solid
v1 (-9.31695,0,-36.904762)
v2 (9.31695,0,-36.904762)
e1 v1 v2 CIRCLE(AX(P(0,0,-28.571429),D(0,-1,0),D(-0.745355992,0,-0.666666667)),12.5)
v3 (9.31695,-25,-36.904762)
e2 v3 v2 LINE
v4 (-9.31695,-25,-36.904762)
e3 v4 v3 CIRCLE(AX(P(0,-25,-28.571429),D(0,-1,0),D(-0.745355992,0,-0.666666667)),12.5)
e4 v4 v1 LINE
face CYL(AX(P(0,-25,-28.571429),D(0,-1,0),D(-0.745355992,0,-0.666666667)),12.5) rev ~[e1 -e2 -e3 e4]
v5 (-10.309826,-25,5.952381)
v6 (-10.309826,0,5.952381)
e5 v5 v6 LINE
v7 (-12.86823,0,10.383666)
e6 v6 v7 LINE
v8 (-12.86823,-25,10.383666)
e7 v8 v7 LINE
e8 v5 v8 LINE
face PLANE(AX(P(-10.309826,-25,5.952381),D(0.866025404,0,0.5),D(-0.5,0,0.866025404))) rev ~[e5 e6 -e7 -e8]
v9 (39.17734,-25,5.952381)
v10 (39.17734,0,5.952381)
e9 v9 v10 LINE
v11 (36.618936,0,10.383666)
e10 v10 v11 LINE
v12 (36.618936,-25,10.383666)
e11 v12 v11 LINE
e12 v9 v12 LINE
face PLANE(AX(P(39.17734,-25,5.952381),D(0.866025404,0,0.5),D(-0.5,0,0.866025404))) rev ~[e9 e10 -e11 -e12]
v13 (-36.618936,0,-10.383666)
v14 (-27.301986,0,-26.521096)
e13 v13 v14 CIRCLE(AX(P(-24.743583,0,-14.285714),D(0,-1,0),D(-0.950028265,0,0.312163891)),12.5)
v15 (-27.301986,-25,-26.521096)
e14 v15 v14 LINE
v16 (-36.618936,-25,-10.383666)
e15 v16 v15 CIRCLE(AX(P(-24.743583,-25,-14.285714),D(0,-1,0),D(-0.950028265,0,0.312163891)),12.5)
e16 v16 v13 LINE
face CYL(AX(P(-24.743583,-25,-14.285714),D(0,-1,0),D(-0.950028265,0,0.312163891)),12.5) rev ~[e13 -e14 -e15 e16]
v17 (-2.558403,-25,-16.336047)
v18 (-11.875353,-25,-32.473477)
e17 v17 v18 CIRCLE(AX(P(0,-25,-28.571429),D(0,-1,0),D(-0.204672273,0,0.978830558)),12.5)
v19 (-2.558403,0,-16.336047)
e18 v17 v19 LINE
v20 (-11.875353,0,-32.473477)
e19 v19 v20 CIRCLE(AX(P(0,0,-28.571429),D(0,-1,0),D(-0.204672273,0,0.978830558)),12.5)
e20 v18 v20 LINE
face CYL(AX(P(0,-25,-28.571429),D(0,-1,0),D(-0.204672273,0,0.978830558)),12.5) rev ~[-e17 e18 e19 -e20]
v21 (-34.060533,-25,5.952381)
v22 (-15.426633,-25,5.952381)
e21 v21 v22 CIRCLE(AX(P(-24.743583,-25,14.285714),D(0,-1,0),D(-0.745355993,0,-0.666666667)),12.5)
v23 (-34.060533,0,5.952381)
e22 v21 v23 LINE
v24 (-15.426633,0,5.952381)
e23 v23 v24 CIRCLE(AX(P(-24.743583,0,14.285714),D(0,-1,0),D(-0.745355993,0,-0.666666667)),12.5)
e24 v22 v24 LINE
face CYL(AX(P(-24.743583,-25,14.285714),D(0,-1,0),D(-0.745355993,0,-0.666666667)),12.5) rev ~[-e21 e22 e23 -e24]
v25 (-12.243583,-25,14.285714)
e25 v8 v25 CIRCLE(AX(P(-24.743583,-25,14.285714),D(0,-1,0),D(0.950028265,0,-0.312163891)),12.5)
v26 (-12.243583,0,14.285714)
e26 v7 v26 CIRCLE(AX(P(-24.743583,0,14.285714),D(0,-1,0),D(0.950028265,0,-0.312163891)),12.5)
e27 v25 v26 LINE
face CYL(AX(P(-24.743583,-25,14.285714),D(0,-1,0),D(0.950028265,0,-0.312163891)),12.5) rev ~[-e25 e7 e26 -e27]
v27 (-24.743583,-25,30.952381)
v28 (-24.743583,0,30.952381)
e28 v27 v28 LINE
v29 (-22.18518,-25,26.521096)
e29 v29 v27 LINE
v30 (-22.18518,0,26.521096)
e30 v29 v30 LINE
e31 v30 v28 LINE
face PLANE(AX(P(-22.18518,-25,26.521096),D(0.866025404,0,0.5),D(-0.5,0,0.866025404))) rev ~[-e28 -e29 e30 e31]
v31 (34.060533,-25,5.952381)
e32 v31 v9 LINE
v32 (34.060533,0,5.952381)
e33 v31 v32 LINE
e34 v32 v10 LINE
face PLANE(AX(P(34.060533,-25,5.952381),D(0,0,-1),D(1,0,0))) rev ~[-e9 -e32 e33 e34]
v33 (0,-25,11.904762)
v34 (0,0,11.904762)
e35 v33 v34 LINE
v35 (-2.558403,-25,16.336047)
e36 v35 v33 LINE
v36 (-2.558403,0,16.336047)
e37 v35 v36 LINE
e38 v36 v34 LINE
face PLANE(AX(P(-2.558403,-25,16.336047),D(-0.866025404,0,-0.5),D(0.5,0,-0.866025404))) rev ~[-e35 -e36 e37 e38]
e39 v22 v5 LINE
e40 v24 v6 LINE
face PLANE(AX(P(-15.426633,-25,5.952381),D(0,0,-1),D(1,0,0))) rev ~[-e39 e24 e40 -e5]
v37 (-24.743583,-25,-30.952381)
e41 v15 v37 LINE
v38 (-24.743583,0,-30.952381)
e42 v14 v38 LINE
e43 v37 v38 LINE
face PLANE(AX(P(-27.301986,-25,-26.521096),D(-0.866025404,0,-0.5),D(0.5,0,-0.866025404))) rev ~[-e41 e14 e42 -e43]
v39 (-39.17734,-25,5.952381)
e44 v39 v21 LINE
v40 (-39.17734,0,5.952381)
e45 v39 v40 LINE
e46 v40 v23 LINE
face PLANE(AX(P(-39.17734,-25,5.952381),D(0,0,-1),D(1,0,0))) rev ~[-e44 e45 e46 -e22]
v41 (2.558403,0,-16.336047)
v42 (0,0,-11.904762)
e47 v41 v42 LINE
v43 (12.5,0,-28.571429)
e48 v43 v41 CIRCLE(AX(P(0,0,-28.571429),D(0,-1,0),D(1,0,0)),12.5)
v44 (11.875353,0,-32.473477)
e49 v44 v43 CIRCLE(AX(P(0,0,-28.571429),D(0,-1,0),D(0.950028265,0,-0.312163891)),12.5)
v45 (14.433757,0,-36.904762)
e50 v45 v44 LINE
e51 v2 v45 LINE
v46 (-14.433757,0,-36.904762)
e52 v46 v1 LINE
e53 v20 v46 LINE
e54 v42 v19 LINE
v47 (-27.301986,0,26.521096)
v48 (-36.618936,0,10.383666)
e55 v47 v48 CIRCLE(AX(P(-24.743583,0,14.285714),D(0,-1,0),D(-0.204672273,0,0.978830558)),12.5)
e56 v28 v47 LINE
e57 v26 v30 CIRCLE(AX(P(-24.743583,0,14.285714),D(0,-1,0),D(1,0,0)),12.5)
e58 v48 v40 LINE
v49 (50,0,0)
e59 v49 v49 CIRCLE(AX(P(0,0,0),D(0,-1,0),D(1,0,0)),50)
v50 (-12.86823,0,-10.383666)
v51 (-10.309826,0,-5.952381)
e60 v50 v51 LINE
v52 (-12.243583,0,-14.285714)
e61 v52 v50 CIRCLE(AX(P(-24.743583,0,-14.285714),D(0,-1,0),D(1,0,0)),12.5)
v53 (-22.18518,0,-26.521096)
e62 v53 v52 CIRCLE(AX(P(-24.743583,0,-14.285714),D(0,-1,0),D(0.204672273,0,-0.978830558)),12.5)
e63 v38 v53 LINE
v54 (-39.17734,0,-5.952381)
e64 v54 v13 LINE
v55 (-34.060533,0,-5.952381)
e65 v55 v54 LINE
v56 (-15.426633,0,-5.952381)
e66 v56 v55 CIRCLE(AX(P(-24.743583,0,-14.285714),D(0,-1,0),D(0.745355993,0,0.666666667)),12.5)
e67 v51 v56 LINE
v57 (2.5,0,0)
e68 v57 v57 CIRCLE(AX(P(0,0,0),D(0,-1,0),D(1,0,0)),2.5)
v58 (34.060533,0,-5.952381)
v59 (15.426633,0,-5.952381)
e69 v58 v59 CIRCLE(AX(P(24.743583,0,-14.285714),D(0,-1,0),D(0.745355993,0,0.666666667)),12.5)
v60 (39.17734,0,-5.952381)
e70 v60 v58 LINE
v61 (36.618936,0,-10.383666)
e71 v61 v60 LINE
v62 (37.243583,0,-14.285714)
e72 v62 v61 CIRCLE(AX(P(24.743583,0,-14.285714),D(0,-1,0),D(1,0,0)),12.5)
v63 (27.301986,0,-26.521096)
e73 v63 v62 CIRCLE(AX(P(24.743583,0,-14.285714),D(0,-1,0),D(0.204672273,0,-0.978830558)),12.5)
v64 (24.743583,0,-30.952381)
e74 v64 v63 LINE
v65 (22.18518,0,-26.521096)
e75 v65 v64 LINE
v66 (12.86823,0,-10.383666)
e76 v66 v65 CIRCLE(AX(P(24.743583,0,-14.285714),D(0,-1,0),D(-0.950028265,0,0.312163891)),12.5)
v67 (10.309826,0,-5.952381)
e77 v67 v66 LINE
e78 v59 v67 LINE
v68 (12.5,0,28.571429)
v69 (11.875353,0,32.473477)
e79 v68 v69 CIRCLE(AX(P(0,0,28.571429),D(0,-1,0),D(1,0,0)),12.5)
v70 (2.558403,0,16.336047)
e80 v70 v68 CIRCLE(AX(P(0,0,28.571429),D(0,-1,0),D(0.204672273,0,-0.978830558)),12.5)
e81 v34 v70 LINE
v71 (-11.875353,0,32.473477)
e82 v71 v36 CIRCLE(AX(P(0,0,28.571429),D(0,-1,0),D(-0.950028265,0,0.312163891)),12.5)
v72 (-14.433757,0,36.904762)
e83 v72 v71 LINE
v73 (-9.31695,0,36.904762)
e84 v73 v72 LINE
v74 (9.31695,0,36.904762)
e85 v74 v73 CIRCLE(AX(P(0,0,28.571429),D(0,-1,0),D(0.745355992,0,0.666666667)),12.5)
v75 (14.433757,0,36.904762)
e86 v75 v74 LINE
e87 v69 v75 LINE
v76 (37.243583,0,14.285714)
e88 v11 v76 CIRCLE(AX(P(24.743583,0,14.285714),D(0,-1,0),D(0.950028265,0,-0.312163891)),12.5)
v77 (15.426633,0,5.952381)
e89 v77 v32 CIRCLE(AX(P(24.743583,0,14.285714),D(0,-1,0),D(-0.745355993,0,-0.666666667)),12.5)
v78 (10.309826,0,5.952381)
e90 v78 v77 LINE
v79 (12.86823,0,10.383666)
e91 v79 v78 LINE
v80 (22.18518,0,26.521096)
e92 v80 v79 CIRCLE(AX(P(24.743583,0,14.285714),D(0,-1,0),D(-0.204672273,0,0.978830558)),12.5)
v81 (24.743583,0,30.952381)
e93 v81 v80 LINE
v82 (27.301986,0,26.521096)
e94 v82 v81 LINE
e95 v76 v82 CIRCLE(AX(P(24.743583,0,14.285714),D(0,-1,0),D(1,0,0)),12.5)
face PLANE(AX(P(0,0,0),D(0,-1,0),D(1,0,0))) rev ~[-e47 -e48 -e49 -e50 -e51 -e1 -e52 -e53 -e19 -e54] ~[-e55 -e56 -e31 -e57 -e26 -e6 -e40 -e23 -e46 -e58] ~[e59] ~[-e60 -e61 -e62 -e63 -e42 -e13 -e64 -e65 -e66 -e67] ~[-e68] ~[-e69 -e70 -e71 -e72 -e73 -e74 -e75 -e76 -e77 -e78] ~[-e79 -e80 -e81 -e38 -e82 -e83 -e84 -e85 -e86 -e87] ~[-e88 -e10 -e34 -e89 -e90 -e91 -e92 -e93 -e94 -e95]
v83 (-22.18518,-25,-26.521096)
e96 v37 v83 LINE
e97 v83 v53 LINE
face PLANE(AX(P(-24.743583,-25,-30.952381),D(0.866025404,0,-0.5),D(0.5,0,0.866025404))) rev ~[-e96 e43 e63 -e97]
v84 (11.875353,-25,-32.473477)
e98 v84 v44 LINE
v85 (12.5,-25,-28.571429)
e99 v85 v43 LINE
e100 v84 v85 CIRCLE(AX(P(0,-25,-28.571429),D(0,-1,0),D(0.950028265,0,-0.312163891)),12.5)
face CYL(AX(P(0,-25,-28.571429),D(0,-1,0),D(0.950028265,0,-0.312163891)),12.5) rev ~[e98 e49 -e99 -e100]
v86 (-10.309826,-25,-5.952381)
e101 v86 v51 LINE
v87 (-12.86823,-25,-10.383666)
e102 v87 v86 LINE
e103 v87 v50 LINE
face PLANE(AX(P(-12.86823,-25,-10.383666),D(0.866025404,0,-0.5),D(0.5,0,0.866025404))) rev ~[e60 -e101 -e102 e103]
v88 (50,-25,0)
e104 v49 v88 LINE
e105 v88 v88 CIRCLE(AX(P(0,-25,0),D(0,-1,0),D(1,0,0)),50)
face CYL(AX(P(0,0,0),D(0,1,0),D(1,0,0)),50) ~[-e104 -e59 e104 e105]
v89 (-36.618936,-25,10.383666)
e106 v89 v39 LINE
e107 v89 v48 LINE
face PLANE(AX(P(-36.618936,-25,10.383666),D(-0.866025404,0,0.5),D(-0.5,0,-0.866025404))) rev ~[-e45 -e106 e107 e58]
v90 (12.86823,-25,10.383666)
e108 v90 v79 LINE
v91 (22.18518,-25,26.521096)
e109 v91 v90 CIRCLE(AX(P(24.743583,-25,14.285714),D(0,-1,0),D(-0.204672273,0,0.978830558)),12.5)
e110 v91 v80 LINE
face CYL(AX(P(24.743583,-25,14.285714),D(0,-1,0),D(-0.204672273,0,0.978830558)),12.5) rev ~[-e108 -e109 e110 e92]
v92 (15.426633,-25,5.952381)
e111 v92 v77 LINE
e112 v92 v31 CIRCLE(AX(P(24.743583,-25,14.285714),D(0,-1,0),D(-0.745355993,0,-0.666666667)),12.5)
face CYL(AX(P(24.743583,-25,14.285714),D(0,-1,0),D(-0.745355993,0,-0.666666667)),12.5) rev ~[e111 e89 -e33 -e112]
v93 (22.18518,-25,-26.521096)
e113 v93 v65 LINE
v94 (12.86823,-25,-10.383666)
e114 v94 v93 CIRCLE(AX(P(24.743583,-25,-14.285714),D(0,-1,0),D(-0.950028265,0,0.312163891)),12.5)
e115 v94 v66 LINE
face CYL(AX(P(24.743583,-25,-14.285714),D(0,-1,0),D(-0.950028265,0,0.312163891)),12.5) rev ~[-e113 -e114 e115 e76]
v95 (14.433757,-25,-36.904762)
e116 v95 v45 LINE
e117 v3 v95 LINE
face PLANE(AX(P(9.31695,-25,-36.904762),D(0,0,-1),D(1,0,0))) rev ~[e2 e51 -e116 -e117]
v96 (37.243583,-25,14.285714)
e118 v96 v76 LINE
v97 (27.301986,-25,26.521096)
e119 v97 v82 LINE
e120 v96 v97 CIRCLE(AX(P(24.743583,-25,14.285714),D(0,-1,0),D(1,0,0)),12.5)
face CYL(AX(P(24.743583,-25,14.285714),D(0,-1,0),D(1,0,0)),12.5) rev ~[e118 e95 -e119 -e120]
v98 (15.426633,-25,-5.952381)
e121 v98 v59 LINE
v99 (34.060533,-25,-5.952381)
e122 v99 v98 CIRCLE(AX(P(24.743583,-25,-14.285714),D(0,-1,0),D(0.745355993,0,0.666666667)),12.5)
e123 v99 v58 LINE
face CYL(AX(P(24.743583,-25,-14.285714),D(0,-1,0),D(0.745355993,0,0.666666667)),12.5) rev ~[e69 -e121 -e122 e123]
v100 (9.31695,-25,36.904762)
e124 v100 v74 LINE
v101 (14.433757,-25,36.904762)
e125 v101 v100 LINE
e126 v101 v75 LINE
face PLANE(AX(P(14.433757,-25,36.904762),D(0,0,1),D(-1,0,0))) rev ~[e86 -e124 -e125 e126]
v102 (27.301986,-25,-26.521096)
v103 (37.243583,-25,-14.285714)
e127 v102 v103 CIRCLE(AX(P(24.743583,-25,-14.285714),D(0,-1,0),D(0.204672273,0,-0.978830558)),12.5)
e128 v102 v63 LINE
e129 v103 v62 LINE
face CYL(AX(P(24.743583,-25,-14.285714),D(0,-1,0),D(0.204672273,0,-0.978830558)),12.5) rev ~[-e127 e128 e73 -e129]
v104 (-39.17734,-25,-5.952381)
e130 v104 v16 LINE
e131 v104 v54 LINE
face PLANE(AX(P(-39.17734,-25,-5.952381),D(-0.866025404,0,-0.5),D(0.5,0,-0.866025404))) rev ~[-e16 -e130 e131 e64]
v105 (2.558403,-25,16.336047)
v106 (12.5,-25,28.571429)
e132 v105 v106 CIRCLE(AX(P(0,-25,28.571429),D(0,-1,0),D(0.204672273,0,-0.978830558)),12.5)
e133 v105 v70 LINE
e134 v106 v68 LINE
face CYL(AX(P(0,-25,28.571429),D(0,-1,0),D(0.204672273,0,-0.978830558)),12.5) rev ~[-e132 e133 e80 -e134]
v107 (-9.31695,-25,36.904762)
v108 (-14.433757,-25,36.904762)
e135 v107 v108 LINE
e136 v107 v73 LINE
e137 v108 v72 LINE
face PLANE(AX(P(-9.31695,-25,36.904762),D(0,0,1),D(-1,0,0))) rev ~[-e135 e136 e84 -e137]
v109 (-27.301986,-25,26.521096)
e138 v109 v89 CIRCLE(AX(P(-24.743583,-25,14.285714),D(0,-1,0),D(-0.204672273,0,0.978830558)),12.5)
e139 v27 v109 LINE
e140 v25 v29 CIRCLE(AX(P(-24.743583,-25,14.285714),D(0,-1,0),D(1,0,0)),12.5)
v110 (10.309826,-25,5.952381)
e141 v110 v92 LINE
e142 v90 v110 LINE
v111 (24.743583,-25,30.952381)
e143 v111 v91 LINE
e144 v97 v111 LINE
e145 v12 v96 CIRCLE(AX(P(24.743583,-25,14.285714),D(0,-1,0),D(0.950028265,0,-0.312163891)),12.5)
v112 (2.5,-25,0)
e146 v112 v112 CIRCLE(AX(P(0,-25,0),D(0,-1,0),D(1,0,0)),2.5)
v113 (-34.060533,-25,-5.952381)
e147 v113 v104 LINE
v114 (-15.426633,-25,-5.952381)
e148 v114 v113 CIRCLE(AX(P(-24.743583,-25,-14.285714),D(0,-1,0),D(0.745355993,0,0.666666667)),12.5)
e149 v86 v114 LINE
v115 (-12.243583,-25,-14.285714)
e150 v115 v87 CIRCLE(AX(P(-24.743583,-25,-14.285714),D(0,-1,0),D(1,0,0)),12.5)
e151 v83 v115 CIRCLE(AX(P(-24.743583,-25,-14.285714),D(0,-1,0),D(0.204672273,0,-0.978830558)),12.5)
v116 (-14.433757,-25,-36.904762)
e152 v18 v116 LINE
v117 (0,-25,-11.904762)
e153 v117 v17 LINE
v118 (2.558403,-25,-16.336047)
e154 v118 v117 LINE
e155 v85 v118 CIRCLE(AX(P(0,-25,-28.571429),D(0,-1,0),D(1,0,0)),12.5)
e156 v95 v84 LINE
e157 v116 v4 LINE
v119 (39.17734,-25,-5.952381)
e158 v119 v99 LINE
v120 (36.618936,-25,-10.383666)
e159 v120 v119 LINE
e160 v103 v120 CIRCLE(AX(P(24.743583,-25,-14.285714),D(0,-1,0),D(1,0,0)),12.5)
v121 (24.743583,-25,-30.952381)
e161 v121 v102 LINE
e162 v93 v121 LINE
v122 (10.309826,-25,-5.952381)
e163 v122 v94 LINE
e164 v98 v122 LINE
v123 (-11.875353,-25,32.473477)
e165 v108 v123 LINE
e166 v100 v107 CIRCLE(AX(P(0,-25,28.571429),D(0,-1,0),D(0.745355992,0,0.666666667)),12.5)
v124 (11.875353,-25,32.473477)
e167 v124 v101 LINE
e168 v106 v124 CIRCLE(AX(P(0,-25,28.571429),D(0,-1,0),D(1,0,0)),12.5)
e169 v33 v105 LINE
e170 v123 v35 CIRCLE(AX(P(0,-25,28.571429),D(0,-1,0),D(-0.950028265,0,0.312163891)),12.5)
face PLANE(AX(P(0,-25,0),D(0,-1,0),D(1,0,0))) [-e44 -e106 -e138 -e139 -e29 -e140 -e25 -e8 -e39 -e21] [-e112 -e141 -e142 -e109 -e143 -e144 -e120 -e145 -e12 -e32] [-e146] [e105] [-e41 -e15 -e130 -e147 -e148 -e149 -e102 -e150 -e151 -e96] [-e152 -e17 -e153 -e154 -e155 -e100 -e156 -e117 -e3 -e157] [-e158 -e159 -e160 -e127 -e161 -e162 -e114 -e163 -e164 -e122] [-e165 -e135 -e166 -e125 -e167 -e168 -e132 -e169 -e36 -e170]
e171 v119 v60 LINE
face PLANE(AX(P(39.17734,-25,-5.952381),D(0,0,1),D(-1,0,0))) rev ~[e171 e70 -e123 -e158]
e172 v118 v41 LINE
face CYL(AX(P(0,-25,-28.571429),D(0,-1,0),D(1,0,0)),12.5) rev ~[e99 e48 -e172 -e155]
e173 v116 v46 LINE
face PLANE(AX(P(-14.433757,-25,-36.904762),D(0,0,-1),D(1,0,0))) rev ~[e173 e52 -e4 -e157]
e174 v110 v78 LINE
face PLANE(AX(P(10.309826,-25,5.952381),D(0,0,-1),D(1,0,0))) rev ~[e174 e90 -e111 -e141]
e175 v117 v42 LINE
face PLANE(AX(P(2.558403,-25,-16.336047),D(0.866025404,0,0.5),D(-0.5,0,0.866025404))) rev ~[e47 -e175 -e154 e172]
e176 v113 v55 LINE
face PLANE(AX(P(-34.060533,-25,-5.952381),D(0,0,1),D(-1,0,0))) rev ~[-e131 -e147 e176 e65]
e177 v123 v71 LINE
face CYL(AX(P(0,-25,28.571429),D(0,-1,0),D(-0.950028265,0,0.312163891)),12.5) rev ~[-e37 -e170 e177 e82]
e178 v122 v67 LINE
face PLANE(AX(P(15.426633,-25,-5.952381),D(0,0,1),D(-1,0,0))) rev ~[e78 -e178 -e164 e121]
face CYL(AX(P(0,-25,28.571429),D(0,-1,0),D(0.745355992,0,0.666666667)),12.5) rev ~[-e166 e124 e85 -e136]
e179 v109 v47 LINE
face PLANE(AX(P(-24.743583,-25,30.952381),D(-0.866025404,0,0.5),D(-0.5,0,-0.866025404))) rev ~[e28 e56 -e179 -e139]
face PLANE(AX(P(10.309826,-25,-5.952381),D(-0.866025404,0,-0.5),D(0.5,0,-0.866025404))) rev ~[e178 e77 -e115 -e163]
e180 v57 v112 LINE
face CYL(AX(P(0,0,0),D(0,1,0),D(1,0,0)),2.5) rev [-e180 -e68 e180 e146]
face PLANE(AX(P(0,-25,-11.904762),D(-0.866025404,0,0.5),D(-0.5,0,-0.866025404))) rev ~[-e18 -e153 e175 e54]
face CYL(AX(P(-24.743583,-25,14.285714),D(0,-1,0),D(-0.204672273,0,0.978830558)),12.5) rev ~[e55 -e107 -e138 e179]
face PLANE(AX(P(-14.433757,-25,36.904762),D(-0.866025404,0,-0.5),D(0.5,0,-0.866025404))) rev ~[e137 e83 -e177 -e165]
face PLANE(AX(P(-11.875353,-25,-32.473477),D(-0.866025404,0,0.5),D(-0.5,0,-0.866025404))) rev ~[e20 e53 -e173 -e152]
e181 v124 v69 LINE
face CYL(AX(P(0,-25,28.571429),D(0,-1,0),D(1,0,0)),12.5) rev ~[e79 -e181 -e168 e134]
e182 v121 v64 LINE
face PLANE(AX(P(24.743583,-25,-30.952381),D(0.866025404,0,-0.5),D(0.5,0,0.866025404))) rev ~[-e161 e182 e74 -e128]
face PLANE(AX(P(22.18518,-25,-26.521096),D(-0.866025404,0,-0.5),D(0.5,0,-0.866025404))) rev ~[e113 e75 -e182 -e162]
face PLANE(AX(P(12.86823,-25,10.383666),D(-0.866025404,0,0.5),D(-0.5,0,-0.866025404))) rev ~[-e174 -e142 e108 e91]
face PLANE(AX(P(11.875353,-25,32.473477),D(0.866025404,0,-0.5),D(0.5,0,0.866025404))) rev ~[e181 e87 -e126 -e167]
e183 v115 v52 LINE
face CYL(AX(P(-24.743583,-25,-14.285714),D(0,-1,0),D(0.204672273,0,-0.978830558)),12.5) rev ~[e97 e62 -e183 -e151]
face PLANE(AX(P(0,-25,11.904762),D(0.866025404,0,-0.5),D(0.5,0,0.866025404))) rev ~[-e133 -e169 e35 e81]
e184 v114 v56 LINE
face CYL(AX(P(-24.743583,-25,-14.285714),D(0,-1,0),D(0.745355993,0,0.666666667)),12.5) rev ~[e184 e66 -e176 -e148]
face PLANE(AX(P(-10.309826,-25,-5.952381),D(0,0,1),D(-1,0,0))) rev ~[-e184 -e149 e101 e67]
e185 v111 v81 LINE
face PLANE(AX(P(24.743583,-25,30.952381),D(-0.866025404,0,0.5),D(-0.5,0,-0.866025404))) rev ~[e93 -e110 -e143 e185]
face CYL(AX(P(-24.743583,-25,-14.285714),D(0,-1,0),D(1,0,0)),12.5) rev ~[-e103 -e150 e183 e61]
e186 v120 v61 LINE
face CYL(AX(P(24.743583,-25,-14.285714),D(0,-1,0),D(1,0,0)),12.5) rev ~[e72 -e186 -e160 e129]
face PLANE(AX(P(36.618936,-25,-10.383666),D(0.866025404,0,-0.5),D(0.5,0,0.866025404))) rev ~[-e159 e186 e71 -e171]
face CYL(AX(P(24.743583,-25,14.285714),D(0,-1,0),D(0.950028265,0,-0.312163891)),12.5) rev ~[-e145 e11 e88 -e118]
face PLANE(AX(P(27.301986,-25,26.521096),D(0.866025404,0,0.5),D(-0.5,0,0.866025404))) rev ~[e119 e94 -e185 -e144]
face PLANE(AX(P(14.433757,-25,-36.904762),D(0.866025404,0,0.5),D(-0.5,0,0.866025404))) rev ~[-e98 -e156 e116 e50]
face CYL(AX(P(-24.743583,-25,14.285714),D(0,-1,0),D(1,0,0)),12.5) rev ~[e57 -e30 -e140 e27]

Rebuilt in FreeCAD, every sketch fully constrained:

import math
import FreeCAD as App
import Part
import Sketcher
from FreeCAD import Vector
Q = App.Units.Quantity

doc = App.newDocument("Part")
body = doc.addObject("PartDesign::Body", "Body")

# Sketch on XZ plane
sketch1 = body.newObject("Sketcher::SketchObject", "Sketch")
sketch1.AttachmentSupport = (doc.getObject("XZ_Plane"), [""])
sketch1.MapMode = "FlatFace"
sketch1.addGeometry([
    Part.Circle(Vector(0, 0, 0), Vector(0, 0, 1), 50),
    Part.Circle(Vector(0, 0, 0), Vector(0, 0, 1), 2.5),
], False)
sketch1.addConstraint([
    Sketcher.Constraint("Coincident", 0, 3, -1, 1),
    Sketcher.Constraint("Coincident", 1, 3, -1, 1),
    Sketcher.Constraint("Diameter", 0, Q("100 mm")),
    Sketcher.Constraint("Diameter", 1, Q("5 mm")),
])
pad1 = body.newObject("PartDesign::Pad", "Pad")
pad1.Profile = sketch1
pad1.Length = 25

# Sketch on XZ plane
sketch2 = body.newObject("Sketcher::SketchObject", "Sketch001")
sketch2.AttachmentSupport = (doc.getObject("XZ_Plane"), [""])
sketch2.MapMode = "FlatFace"
sketch2.AttachmentOffset = App.Placement(Vector(0, 0, 25), App.Rotation())
sketch2.addGeometry([
    Part.LineSegment(Vector(11.875353, 32.473477, 0), Vector(14.433757, 36.904762, 0)),  # 0
    Part.LineSegment(Vector(14.433757, 36.904762, 0), Vector(9.31695, 36.904762, 0)),  # 1
    Part.ArcOfCircle(Part.Circle(Vector(0, 28.571429, 0), Vector(0, 0, 1), 12.5), math.radians(41.810315), math.radians(138.189685)),  # 2
    Part.LineSegment(Vector(-9.31695, 36.904762, 0), Vector(-14.433757, 36.904762, 0)),  # 3
    Part.LineSegment(Vector(-14.433757, 36.904762, 0), Vector(-11.875353, 32.473477, 0)),  # 4
    Part.ArcOfCircle(Part.Circle(Vector(0, 28.571429, 0), Vector(0, 0, 1), 12.5), math.radians(161.810315), math.radians(258.189685)),  # 5
    Part.LineSegment(Vector(-2.558403, 16.336047, 0), Vector(0, 11.904762, 0)),  # 6
    Part.LineSegment(Vector(0, 11.904762, 0), Vector(2.558403, 16.336047, 0)),  # 7
    Part.ArcOfCircle(Part.Circle(Vector(0, 28.571429, 0), Vector(0, 0, 1), 12.5), math.radians(-78.189685), math.radians(0)),  # 8
    Part.ArcOfCircle(Part.Circle(Vector(0, 28.571429, 0), Vector(0, 0, 1), 12.5), math.radians(0), math.radians(18.189685)),  # 9
    Part.LineSegment(Vector(27.301986, 26.521096, 0), Vector(24.743583, 30.952381, 0)),  # 10
    Part.LineSegment(Vector(24.743583, 30.952381, 0), Vector(22.18518, 26.521096, 0)),  # 11
    Part.ArcOfCircle(Part.Circle(Vector(24.743583, 14.285714, 0), Vector(0, 0, 1), 12.5), math.radians(101.810315), math.radians(198.189685)),  # 12
    Part.LineSegment(Vector(12.86823, 10.383666, 0), Vector(10.309826, 5.952381, 0)),  # 13
    Part.LineSegment(Vector(10.309826, 5.952381, 0), Vector(15.426633, 5.952381, 0)),  # 14
    Part.ArcOfCircle(Part.Circle(Vector(24.743583, 14.285714, 0), Vector(0, 0, 1), 12.5), math.radians(-138.189685), math.radians(-41.810315)),  # 15
    Part.LineSegment(Vector(34.060533, 5.952381, 0), Vector(39.17734, 5.952381, 0)),  # 16
    Part.LineSegment(Vector(39.17734, 5.952381, 0), Vector(36.618936, 10.383666, 0)),  # 17
    Part.ArcOfCircle(Part.Circle(Vector(24.743583, 14.285714, 0), Vector(0, 0, 1), 12.5), math.radians(-18.189685), math.radians(0)),  # 18
    Part.ArcOfCircle(Part.Circle(Vector(24.743583, 14.285714, 0), Vector(0, 0, 1), 12.5), math.radians(0), math.radians(78.189685)),  # 19
    Part.LineSegment(Vector(-36.618936, 10.383666, 0), Vector(-39.17734, 5.952381, 0)),  # 20
    Part.LineSegment(Vector(-39.17734, 5.952381, 0), Vector(-34.060533, 5.952381, 0)),  # 21
    Part.ArcOfCircle(Part.Circle(Vector(-24.743583, 14.285714, 0), Vector(0, 0, 1), 12.5), math.radians(-138.189685), math.radians(-41.810315)),  # 22
    Part.LineSegment(Vector(-15.426633, 5.952381, 0), Vector(-10.309826, 5.952381, 0)),  # 23
    Part.LineSegment(Vector(-10.309826, 5.952381, 0), Vector(-12.86823, 10.383666, 0)),  # 24
    Part.ArcOfCircle(Part.Circle(Vector(-24.743583, 14.285714, 0), Vector(0, 0, 1), 12.5), math.radians(-18.189685), math.radians(0)),  # 25
    Part.ArcOfCircle(Part.Circle(Vector(-24.743583, 14.285714, 0), Vector(0, 0, 1), 12.5), math.radians(0), math.radians(78.189685)),  # 26
    Part.LineSegment(Vector(-22.18518, 26.521096, 0), Vector(-24.743583, 30.952381, 0)),  # 27
    Part.LineSegment(Vector(-24.743583, 30.952381, 0), Vector(-27.301986, 26.521096, 0)),  # 28
    Part.ArcOfCircle(Part.Circle(Vector(-24.743583, 14.285714, 0), Vector(0, 0, 1), 12.5), math.radians(101.810315), math.radians(198.189685)),  # 29
    Part.LineSegment(Vector(-12.86823, -10.383666, 0), Vector(-10.309826, -5.952381, 0)),  # 30
    Part.LineSegment(Vector(-10.309826, -5.952381, 0), Vector(-15.426633, -5.952381, 0)),  # 31
    Part.ArcOfCircle(Part.Circle(Vector(-24.743583, -14.285714, 0), Vector(0, 0, 1), 12.5), math.radians(41.810315), math.radians(138.189685)),  # 32
    Part.LineSegment(Vector(-34.060533, -5.952381, 0), Vector(-39.17734, -5.952381, 0)),  # 33
    Part.LineSegment(Vector(-39.17734, -5.952381, 0), Vector(-36.618936, -10.383666, 0)),  # 34
    Part.ArcOfCircle(Part.Circle(Vector(-24.743583, -14.285714, 0), Vector(0, 0, 1), 12.5), math.radians(161.810315), math.radians(258.189685)),  # 35
    Part.LineSegment(Vector(-27.301986, -26.521096, 0), Vector(-24.743583, -30.952381, 0)),  # 36
    Part.LineSegment(Vector(-24.743583, -30.952381, 0), Vector(-22.18518, -26.521096, 0)),  # 37
    Part.ArcOfCircle(Part.Circle(Vector(-24.743583, -14.285714, 0), Vector(0, 0, 1), 12.5), math.radians(-78.189685), math.radians(0)),  # 38
    Part.ArcOfCircle(Part.Circle(Vector(-24.743583, -14.285714, 0), Vector(0, 0, 1), 12.5), math.radians(0), math.radians(18.189685)),  # 39
    Part.LineSegment(Vector(9.31695, -36.904762, 0), Vector(14.433757, -36.904762, 0)),  # 40
    Part.LineSegment(Vector(14.433757, -36.904762, 0), Vector(11.875353, -32.473477, 0)),  # 41
    Part.ArcOfCircle(Part.Circle(Vector(0, -28.571429, 0), Vector(0, 0, 1), 12.5), math.radians(-18.189685), math.radians(0)),  # 42
    Part.ArcOfCircle(Part.Circle(Vector(0, -28.571429, 0), Vector(0, 0, 1), 12.5), math.radians(0), math.radians(78.189685)),  # 43
    Part.LineSegment(Vector(2.558403, -16.336047, 0), Vector(0, -11.904762, 0)),  # 44
    Part.LineSegment(Vector(0, -11.904762, 0), Vector(-2.558403, -16.336047, 0)),  # 45
    Part.ArcOfCircle(Part.Circle(Vector(0, -28.571429, 0), Vector(0, 0, 1), 12.5), math.radians(101.810315), math.radians(198.189685)),  # 46
    Part.LineSegment(Vector(-11.875353, -32.473477, 0), Vector(-14.433757, -36.904762, 0)),  # 47
    Part.LineSegment(Vector(-14.433757, -36.904762, 0), Vector(-9.31695, -36.904762, 0)),  # 48
    Part.ArcOfCircle(Part.Circle(Vector(0, -28.571429, 0), Vector(0, 0, 1), 12.5), math.radians(-138.189685), math.radians(-41.810315)),  # 49
    Part.LineSegment(Vector(15.426633, -5.952381, 0), Vector(10.309826, -5.952381, 0)),  # 50
    Part.LineSegment(Vector(10.309826, -5.952381, 0), Vector(12.86823, -10.383666, 0)),  # 51
    Part.ArcOfCircle(Part.Circle(Vector(24.743583, -14.285714, 0), Vector(0, 0, 1), 12.5), math.radians(161.810315), math.radians(258.189685)),  # 52
    Part.LineSegment(Vector(22.18518, -26.521096, 0), Vector(24.743583, -30.952381, 0)),  # 53
    Part.LineSegment(Vector(24.743583, -30.952381, 0), Vector(27.301986, -26.521096, 0)),  # 54
    Part.ArcOfCircle(Part.Circle(Vector(24.743583, -14.285714, 0), Vector(0, 0, 1), 12.5), math.radians(-78.189685), math.radians(0)),  # 55
    Part.ArcOfCircle(Part.Circle(Vector(24.743583, -14.285714, 0), Vector(0, 0, 1), 12.5), math.radians(0), math.radians(18.189685)),  # 56
    Part.LineSegment(Vector(36.618936, -10.383666, 0), Vector(39.17734, -5.952381, 0)),  # 57
    Part.LineSegment(Vector(39.17734, -5.952381, 0), Vector(34.060533, -5.952381, 0)),  # 58
    Part.ArcOfCircle(Part.Circle(Vector(24.743583, -14.285714, 0), Vector(0, 0, 1), 12.5), math.radians(41.810315), math.radians(138.189685)),  # 59
], False)
sketch2.addConstraint([
    Sketcher.Constraint("Coincident", 0, 2, 1, 1),
    Sketcher.Constraint("Coincident", 1, 2, 2, 1),
    Sketcher.Constraint("Coincident", 2, 2, 3, 1),
    Sketcher.Constraint("Coincident", 3, 2, 4, 1),
    Sketcher.Constraint("Coincident", 4, 2, 5, 1),
    Sketcher.Constraint("Coincident", 5, 2, 6, 1),
    Sketcher.Constraint("Coincident", 6, 2, 7, 1),
    Sketcher.Constraint("Coincident", 7, 2, 8, 1),
    Sketcher.Constraint("Tangent", 8, 2, 9, 1),
    Sketcher.Constraint("Coincident", 9, 2, 0, 1),
    Sketcher.Constraint("Coincident", 10, 2, 11, 1),
    Sketcher.Constraint("Coincident", 11, 2, 12, 1),
    Sketcher.Constraint("Coincident", 12, 2, 13, 1),
    Sketcher.Constraint("Coincident", 13, 2, 14, 1),
    Sketcher.Constraint("Coincident", 14, 2, 15, 1),
    Sketcher.Constraint("Coincident", 15, 2, 16, 1),
    Sketcher.Constraint("Coincident", 16, 2, 17, 1),
    Sketcher.Constraint("Coincident", 17, 2, 18, 1),
    Sketcher.Constraint("Tangent", 18, 2, 19, 1),
    Sketcher.Constraint("Coincident", 19, 2, 10, 1),
    Sketcher.Constraint("Coincident", 20, 2, 21, 1),
    Sketcher.Constraint("Coincident", 21, 2, 22, 1),
    Sketcher.Constraint("Coincident", 22, 2, 23, 1),
    Sketcher.Constraint("Coincident", 23, 2, 24, 1),
    Sketcher.Constraint("Coincident", 24, 2, 25, 1),
    Sketcher.Constraint("Tangent", 25, 2, 26, 1),
    Sketcher.Constraint("Coincident", 26, 2, 27, 1),
    Sketcher.Constraint("Coincident", 27, 2, 28, 1),
    Sketcher.Constraint("Coincident", 28, 2, 29, 1),
    Sketcher.Constraint("Coincident", 29, 2, 20, 1),
    Sketcher.Constraint("Coincident", 30, 2, 31, 1),
    Sketcher.Constraint("Coincident", 31, 2, 32, 1),
    Sketcher.Constraint("Coincident", 32, 2, 33, 1),
    Sketcher.Constraint("Coincident", 33, 2, 34, 1),
    Sketcher.Constraint("Coincident", 34, 2, 35, 1),
    Sketcher.Constraint("Coincident", 35, 2, 36, 1),
    Sketcher.Constraint("Coincident", 36, 2, 37, 1),
    Sketcher.Constraint("Coincident", 37, 2, 38, 1),
    Sketcher.Constraint("Tangent", 38, 2, 39, 1),
    Sketcher.Constraint("Coincident", 39, 2, 30, 1),
    Sketcher.Constraint("Coincident", 40, 2, 41, 1),
    Sketcher.Constraint("Coincident", 41, 2, 42, 1),
    Sketcher.Constraint("Tangent", 42, 2, 43, 1),
    Sketcher.Constraint("Coincident", 43, 2, 44, 1),
    Sketcher.Constraint("Coincident", 44, 2, 45, 1),
    Sketcher.Constraint("Coincident", 45, 2, 46, 1),
    Sketcher.Constraint("Coincident", 46, 2, 47, 1),
    Sketcher.Constraint("Coincident", 47, 2, 48, 1),
    Sketcher.Constraint("Coincident", 48, 2, 49, 1),
    Sketcher.Constraint("Coincident", 49, 2, 40, 1),
    Sketcher.Constraint("Coincident", 50, 2, 51, 1),
    Sketcher.Constraint("Coincident", 51, 2, 52, 1),
    Sketcher.Constraint("Coincident", 52, 2, 53, 1),
    Sketcher.Constraint("Coincident", 53, 2, 54, 1),
    Sketcher.Constraint("Coincident", 54, 2, 55, 1),
    Sketcher.Constraint("Tangent", 55, 2, 56, 1),
    Sketcher.Constraint("Coincident", 56, 2, 57, 1),
    Sketcher.Constraint("Coincident", 57, 2, 58, 1),
    Sketcher.Constraint("Coincident", 58, 2, 59, 1),
    Sketcher.Constraint("Coincident", 59, 2, 50, 1),
    Sketcher.Constraint("Horizontal", 1),
    Sketcher.Constraint("Horizontal", 3),
    Sketcher.Constraint("Horizontal", 14),
    Sketcher.Constraint("Horizontal", 16),
    Sketcher.Constraint("Horizontal", 21),
    Sketcher.Constraint("Horizontal", 23),
    Sketcher.Constraint("Horizontal", 31),
    Sketcher.Constraint("Horizontal", 33),
    Sketcher.Constraint("Horizontal", 40),
    Sketcher.Constraint("Horizontal", 48),
    Sketcher.Constraint("Horizontal", 50),
    Sketcher.Constraint("Horizontal", 58),
    Sketcher.Constraint("Coincident", 5, 3, 2, 3),
    Sketcher.Constraint("Coincident", 8, 3, 2, 3),
    Sketcher.Constraint("Coincident", 15, 3, 12, 3),
    Sketcher.Constraint("Coincident", 18, 3, 12, 3),
    Sketcher.Constraint("Coincident", 25, 3, 22, 3),
    Sketcher.Constraint("Coincident", 29, 3, 22, 3),
    Sketcher.Constraint("Coincident", 35, 3, 32, 3),
    Sketcher.Constraint("Coincident", 38, 3, 32, 3),
    Sketcher.Constraint("Coincident", 46, 3, 42, 3),
    Sketcher.Constraint("Coincident", 49, 3, 42, 3),
    Sketcher.Constraint("Coincident", 55, 3, 52, 3),
    Sketcher.Constraint("Coincident", 59, 3, 52, 3),
    Sketcher.Constraint("Equal", 2, 5),
    Sketcher.Constraint("Equal", 5, 8),
    Sketcher.Constraint("Equal", 8, 9),
    Sketcher.Constraint("Equal", 9, 12),
    Sketcher.Constraint("Equal", 12, 15),
    Sketcher.Constraint("Equal", 15, 18),
    Sketcher.Constraint("Equal", 18, 19),
    Sketcher.Constraint("Equal", 19, 22),
    Sketcher.Constraint("Equal", 22, 25),
    Sketcher.Constraint("Equal", 25, 26),
    Sketcher.Constraint("Equal", 26, 29),
    Sketcher.Constraint("Equal", 29, 32),
    Sketcher.Constraint("Equal", 32, 35),
    Sketcher.Constraint("Equal", 35, 38),
    Sketcher.Constraint("Equal", 38, 39),
    Sketcher.Constraint("Equal", 39, 42),
    Sketcher.Constraint("Equal", 42, 43),
    Sketcher.Constraint("Equal", 43, 46),
    Sketcher.Constraint("Equal", 46, 49),
    Sketcher.Constraint("Equal", 49, 52),
    Sketcher.Constraint("Equal", 52, 55),
    Sketcher.Constraint("Equal", 55, 56),
    Sketcher.Constraint("Equal", 56, 59),
    Sketcher.Constraint("Symmetric", 12, 3, 32, 3, -1, 1),
    Sketcher.Constraint("Symmetric", 2, 3, 42, 3, -1, 1),
    Sketcher.Constraint("Symmetric", 22, 3, 52, 3, -1, 1),
    Sketcher.Constraint("Symmetric", 13, 2, 30, 2, -1, 1),
    Sketcher.Constraint("Symmetric", 16, 2, 33, 2, -1, 1),
    Sketcher.Constraint("Symmetric", 10, 2, 36, 2, -1, 1),
    Sketcher.Constraint("Symmetric", 3, 2, 40, 2, -1, 1),
    Sketcher.Constraint("Symmetric", 6, 2, 44, 2, -1, 1),
    Sketcher.Constraint("Symmetric", 0, 2, 47, 2, -1, 1),
    Sketcher.Constraint("Symmetric", 23, 2, 50, 2, -1, 1),
    Sketcher.Constraint("Symmetric", 27, 2, 53, 2, -1, 1),
    Sketcher.Constraint("Symmetric", 20, 2, 57, 2, -1, 1),
    Sketcher.Constraint("Symmetric", 12, 3, 22, 3, -2),
    Sketcher.Constraint("Symmetric", 1, 2, 2, 2, -2),
    Sketcher.Constraint("Symmetric", 16, 2, 20, 2, -2),
    Sketcher.Constraint("Symmetric", 13, 2, 23, 2, -2),
    Sketcher.Constraint("Symmetric", 10, 2, 27, 2, -2),
    Sketcher.Constraint("PointOnObject", 6, 2, -2),
    Sketcher.Constraint("Parallel", 4, 6),
    Sketcher.Constraint("Parallel", 0, 7),
    Sketcher.Constraint("Parallel", 6, 10),
    Sketcher.Constraint("Parallel", 7, 11),
    Sketcher.Constraint("Parallel", 11, 13),
    Sketcher.Constraint("Parallel", 10, 17),
    Sketcher.Constraint("Parallel", 13, 20),
    Sketcher.Constraint("Parallel", 17, 24),
    Sketcher.Constraint("Parallel", 24, 27),
    Sketcher.Constraint("Parallel", 20, 28),
    Sketcher.Constraint("Parallel", 28, 30),
    Sketcher.Constraint("Parallel", 27, 34),
    Sketcher.Constraint("Parallel", 34, 36),
    Sketcher.Constraint("Parallel", 30, 37),
    Sketcher.Constraint("Parallel", 36, 41),
    Sketcher.Constraint("Parallel", 41, 44),
    Sketcher.Constraint("Parallel", 37, 45),
    Sketcher.Constraint("Parallel", 45, 47),
    Sketcher.Constraint("Parallel", 44, 51),
    Sketcher.Constraint("Parallel", 51, 53),
    Sketcher.Constraint("Parallel", 47, 54),
    Sketcher.Constraint("Parallel", 54, 57),
    Sketcher.Constraint("Horizontal", 5, 2, 7, 2),
    Sketcher.Constraint("Horizontal", 9, 3, 8, 2),
    Sketcher.Constraint("Horizontal", 4, 2, 9, 2),
    Sketcher.Constraint("Horizontal", 14, 2, 15, 2),
    Sketcher.Constraint("Horizontal", 12, 2, 17, 2),
    Sketcher.Constraint("Horizontal", 29, 3, 18, 2),
    Sketcher.Constraint("Horizontal", 11, 2, 19, 2),
    Sketcher.Constraint("Horizontal", 18, 2, 25, 2),
    Sketcher.Constraint("Horizontal", 59, 3, 38, 2),
    Sketcher.Constraint("Horizontal", 49, 3, 42, 2),
    Sketcher.Constraint("Horizontal", 38, 2, 55, 2),
    Sketcher.Constraint("Equal", 3, 14),
    Sketcher.Constraint("Equal", 4, 6),
    Sketcher.Constraint("Equal", 7, 10),
    Sketcher.Constraint("Equal", 11, 13),
    Sketcher.Constraint("Radius", 2, Q("12.5 mm")),
    Sketcher.Constraint("Angle", 0, Q("60 deg")),
    Sketcher.Constraint("DistanceX", 1, 2, 1, 1, Q("5.116807 mm")),
    Sketcher.Constraint("DistanceY", -1, 1, 2, 3, Q("28.571429 mm")),
    Sketcher.Constraint("DistanceY", -1, 1, 0, 2, Q("36.904762 mm")),
    Sketcher.Constraint("DistanceY", -1, 1, 10, 2, Q("30.952381 mm")),
    Sketcher.Constraint("DistanceX", -1, 1, 11, 2, Q("22.18518 mm")),
])
pocket1 = body.newObject("PartDesign::Pocket", "Pocket")
pocket1.Profile = sketch2
pocket1.Length = 25

# Sketch on XZ plane
sketch3 = body.newObject("Sketcher::SketchObject", "Sketch002")
sketch3.AttachmentSupport = (doc.getObject("XZ_Plane"), [""])
sketch3.MapMode = "FlatFace"
sketch3.AttachmentOffset = App.Placement(Vector(0, 0, 25), App.Rotation())
sketch3.addGeometry([
    Part.LineSegment(Vector(11.875353, 32.473477, 0), Vector(14.433757, 36.904762, 0)),  # 0
    Part.LineSegment(Vector(14.433757, 36.904762, 0), Vector(9.31695, 36.904762, 0)),  # 1
    Part.ArcOfCircle(Part.Circle(Vector(0, 28.571429, 0), Vector(0, 0, 1), 12.5), math.radians(41.810315), math.radians(138.189685)),  # 2
    Part.LineSegment(Vector(-9.31695, 36.904762, 0), Vector(-14.433757, 36.904762, 0)),  # 3
    Part.LineSegment(Vector(-14.433757, 36.904762, 0), Vector(-11.875353, 32.473477, 0)),  # 4
    Part.ArcOfCircle(Part.Circle(Vector(0, 28.571429, 0), Vector(0, 0, 1), 12.5), math.radians(161.810315), math.radians(258.189685)),  # 5
    Part.LineSegment(Vector(-2.558403, 16.336047, 0), Vector(0, 11.904762, 0)),  # 6
    Part.LineSegment(Vector(0, 11.904762, 0), Vector(2.558403, 16.336047, 0)),  # 7
    Part.ArcOfCircle(Part.Circle(Vector(0, 28.571429, 0), Vector(0, 0, 1), 12.5), math.radians(-78.189685), math.radians(0)),  # 8
    Part.ArcOfCircle(Part.Circle(Vector(0, 28.571429, 0), Vector(0, 0, 1), 12.5), math.radians(0), math.radians(18.189685)),  # 9
    Part.LineSegment(Vector(27.301986, 26.521096, 0), Vector(24.743583, 30.952381, 0)),  # 10
    Part.LineSegment(Vector(24.743583, 30.952381, 0), Vector(22.18518, 26.521096, 0)),  # 11
    Part.ArcOfCircle(Part.Circle(Vector(24.743583, 14.285714, 0), Vector(0, 0, 1), 12.5), math.radians(101.810315), math.radians(198.189685)),  # 12
    Part.LineSegment(Vector(12.86823, 10.383666, 0), Vector(10.309826, 5.952381, 0)),  # 13
    Part.LineSegment(Vector(10.309826, 5.952381, 0), Vector(15.426633, 5.952381, 0)),  # 14
    Part.ArcOfCircle(Part.Circle(Vector(24.743583, 14.285714, 0), Vector(0, 0, 1), 12.5), math.radians(-138.189685), math.radians(-41.810315)),  # 15
    Part.LineSegment(Vector(34.060533, 5.952381, 0), Vector(39.17734, 5.952381, 0)),  # 16
    Part.LineSegment(Vector(39.17734, 5.952381, 0), Vector(36.618936, 10.383666, 0)),  # 17
    Part.ArcOfCircle(Part.Circle(Vector(24.743583, 14.285714, 0), Vector(0, 0, 1), 12.5), math.radians(-18.189685), math.radians(0)),  # 18
    Part.ArcOfCircle(Part.Circle(Vector(24.743583, 14.285714, 0), Vector(0, 0, 1), 12.5), math.radians(0), math.radians(78.189685)),  # 19
    Part.LineSegment(Vector(-12.86823, -10.383666, 0), Vector(-10.309826, -5.952381, 0)),  # 20
    Part.LineSegment(Vector(-10.309826, -5.952381, 0), Vector(-15.426633, -5.952381, 0)),  # 21
    Part.ArcOfCircle(Part.Circle(Vector(-24.743583, -14.285714, 0), Vector(0, 0, 1), 12.5), math.radians(41.810315), math.radians(138.189685)),  # 22
    Part.LineSegment(Vector(-34.060533, -5.952381, 0), Vector(-39.17734, -5.952381, 0)),  # 23
    Part.LineSegment(Vector(-39.17734, -5.952381, 0), Vector(-36.618936, -10.383666, 0)),  # 24
    Part.ArcOfCircle(Part.Circle(Vector(-24.743583, -14.285714, 0), Vector(0, 0, 1), 12.5), math.radians(161.810315), math.radians(258.189685)),  # 25
    Part.LineSegment(Vector(-27.301986, -26.521096, 0), Vector(-24.743583, -30.952381, 0)),  # 26
    Part.LineSegment(Vector(-24.743583, -30.952381, 0), Vector(-22.18518, -26.521096, 0)),  # 27
    Part.ArcOfCircle(Part.Circle(Vector(-24.743583, -14.285714, 0), Vector(0, 0, 1), 12.5), math.radians(-78.189685), math.radians(0)),  # 28
    Part.ArcOfCircle(Part.Circle(Vector(-24.743583, -14.285714, 0), Vector(0, 0, 1), 12.5), math.radians(0), math.radians(18.189685)),  # 29
    Part.LineSegment(Vector(9.31695, -36.904762, 0), Vector(14.433757, -36.904762, 0)),  # 30
    Part.LineSegment(Vector(14.433757, -36.904762, 0), Vector(11.875353, -32.473477, 0)),  # 31
    Part.ArcOfCircle(Part.Circle(Vector(0, -28.571429, 0), Vector(0, 0, 1), 12.5), math.radians(-18.189685), math.radians(0)),  # 32
    Part.ArcOfCircle(Part.Circle(Vector(0, -28.571429, 0), Vector(0, 0, 1), 12.5), math.radians(0), math.radians(78.189685)),  # 33
    Part.LineSegment(Vector(2.558403, -16.336047, 0), Vector(0, -11.904762, 0)),  # 34
    Part.LineSegment(Vector(0, -11.904762, 0), Vector(-2.558403, -16.336047, 0)),  # 35
    Part.ArcOfCircle(Part.Circle(Vector(0, -28.571429, 0), Vector(0, 0, 1), 12.5), math.radians(101.810315), math.radians(198.189685)),  # 36
    Part.LineSegment(Vector(-11.875353, -32.473477, 0), Vector(-14.433757, -36.904762, 0)),  # 37
    Part.LineSegment(Vector(-14.433757, -36.904762, 0), Vector(-9.31695, -36.904762, 0)),  # 38
    Part.ArcOfCircle(Part.Circle(Vector(0, -28.571429, 0), Vector(0, 0, 1), 12.5), math.radians(-138.189685), math.radians(-41.810315)),  # 39
    Part.LineSegment(Vector(15.426633, -5.952381, 0), Vector(10.309826, -5.952381, 0)),  # 40
    Part.LineSegment(Vector(10.309826, -5.952381, 0), Vector(12.86823, -10.383666, 0)),  # 41
    Part.ArcOfCircle(Part.Circle(Vector(24.743583, -14.285714, 0), Vector(0, 0, 1), 12.5), math.radians(161.810315), math.radians(258.189685)),  # 42
    Part.LineSegment(Vector(22.18518, -26.521096, 0), Vector(24.743583, -30.952381, 0)),  # 43
    Part.LineSegment(Vector(24.743583, -30.952381, 0), Vector(27.301986, -26.521096, 0)),  # 44
    Part.ArcOfCircle(Part.Circle(Vector(24.743583, -14.285714, 0), Vector(0, 0, 1), 12.5), math.radians(-78.189685), math.radians(0)),  # 45
    Part.ArcOfCircle(Part.Circle(Vector(24.743583, -14.285714, 0), Vector(0, 0, 1), 12.5), math.radians(0), math.radians(18.189685)),  # 46
    Part.LineSegment(Vector(36.618936, -10.383666, 0), Vector(39.17734, -5.952381, 0)),  # 47
    Part.LineSegment(Vector(39.17734, -5.952381, 0), Vector(34.060533, -5.952381, 0)),  # 48
    Part.ArcOfCircle(Part.Circle(Vector(24.743583, -14.285714, 0), Vector(0, 0, 1), 12.5), math.radians(41.810315), math.radians(138.189685)),  # 49
    Part.ArcOfCircle(Part.Circle(Vector(-24.743583, 14.285714, 0), Vector(0, 0, 1), 12.5), math.radians(-41.810315), math.radians(-18.189685)),  # 50
    Part.LineSegment(Vector(-15.426633, 5.952381, 0), Vector(-10.309826, 5.952381, 0)),  # 51
    Part.LineSegment(Vector(-10.309826, 5.952381, 0), Vector(-12.86823, 10.383666, 0)),  # 52
    Part.LineSegment(Vector(-36.618936, 10.383666, 0), Vector(-39.17734, 5.952381, 0)),  # 53
    Part.LineSegment(Vector(-39.17734, 5.952381, 0), Vector(-34.060533, 5.952381, 0)),  # 54
    Part.ArcOfCircle(Part.Circle(Vector(-24.743583, 14.285714, 0), Vector(0, 0, 1), 12.5), math.radians(-161.810315), math.radians(-138.189685)),  # 55
    Part.LineSegment(Vector(-15.426633, 5.952381, 0), Vector(-34.060533, 5.952381, 0)),  # 56
    Part.ArcOfCircle(Part.Circle(Vector(-24.743583, 14.285714, 0), Vector(0, 0, 1), 12.5), math.radians(-138.189685), math.radians(-41.810315)),  # 57
    Part.ArcOfCircle(Part.Circle(Vector(-24.743583, 14.285714, 0), Vector(0, 0, 1), 12.5), math.radians(101.810315), math.radians(198.189685)),  # 58
    Part.LineSegment(Vector(-36.618936, 10.383666, 0), Vector(-27.301986, 26.521096, 0)),  # 59
    Part.ArcOfCircle(Part.Circle(Vector(-24.743583, 14.285714, 0), Vector(0, 0, 1), 12.5), math.radians(0), math.radians(78.189685)),  # 60
    Part.LineSegment(Vector(-22.18518, 26.521096, 0), Vector(-12.86823, 10.383666, 0)),  # 61
    Part.ArcOfCircle(Part.Circle(Vector(-24.743583, 14.285714, 0), Vector(0, 0, 1), 12.5), math.radians(-18.189685), math.radians(0)),  # 62
    Part.LineSegment(Vector(-24.743583, 30.952381, 0), Vector(-27.301986, 26.521096, 0)),  # 63
    Part.ArcOfCircle(Part.Circle(Vector(-24.743583, 14.285714, 0), Vector(0, 0, 1), 12.5), math.radians(78.189685), math.radians(101.810315)),  # 64
    Part.LineSegment(Vector(-22.18518, 26.521096, 0), Vector(-24.743583, 30.952381, 0)),  # 65
], False)
sketch3.addConstraint([
    Sketcher.Constraint("Coincident", 0, 2, 1, 1),
    Sketcher.Constraint("Coincident", 1, 2, 2, 1),
    Sketcher.Constraint("Coincident", 2, 2, 3, 1),
    Sketcher.Constraint("Coincident", 3, 2, 4, 1),
    Sketcher.Constraint("Coincident", 4, 2, 5, 1),
    Sketcher.Constraint("Coincident", 5, 2, 6, 1),
    Sketcher.Constraint("Coincident", 6, 2, 7, 1),
    Sketcher.Constraint("Coincident", 7, 2, 8, 1),
    Sketcher.Constraint("Tangent", 8, 2, 9, 1),
    Sketcher.Constraint("Coincident", 9, 2, 0, 1),
    Sketcher.Constraint("Coincident", 10, 2, 11, 1),
    Sketcher.Constraint("Coincident", 11, 2, 12, 1),
    Sketcher.Constraint("Coincident", 12, 2, 13, 1),
    Sketcher.Constraint("Coincident", 13, 2, 14, 1),
    Sketcher.Constraint("Coincident", 14, 2, 15, 1),
    Sketcher.Constraint("Coincident", 15, 2, 16, 1),
    Sketcher.Constraint("Coincident", 16, 2, 17, 1),
    Sketcher.Constraint("Coincident", 17, 2, 18, 1),
    Sketcher.Constraint("Tangent", 18, 2, 19, 1),
    Sketcher.Constraint("Coincident", 19, 2, 10, 1),
    Sketcher.Constraint("Coincident", 20, 2, 21, 1),
    Sketcher.Constraint("Coincident", 21, 2, 22, 1),
    Sketcher.Constraint("Coincident", 22, 2, 23, 1),
    Sketcher.Constraint("Coincident", 23, 2, 24, 1),
    Sketcher.Constraint("Coincident", 24, 2, 25, 1),
    Sketcher.Constraint("Coincident", 25, 2, 26, 1),
    Sketcher.Constraint("Coincident", 26, 2, 27, 1),
    Sketcher.Constraint("Coincident", 27, 2, 28, 1),
    Sketcher.Constraint("Tangent", 28, 2, 29, 1),
    Sketcher.Constraint("Coincident", 29, 2, 20, 1),
    Sketcher.Constraint("Coincident", 30, 2, 31, 1),
    Sketcher.Constraint("Coincident", 31, 2, 32, 1),
    Sketcher.Constraint("Tangent", 32, 2, 33, 1),
    Sketcher.Constraint("Coincident", 33, 2, 34, 1),
    Sketcher.Constraint("Coincident", 34, 2, 35, 1),
    Sketcher.Constraint("Coincident", 35, 2, 36, 1),
    Sketcher.Constraint("Coincident", 36, 2, 37, 1),
    Sketcher.Constraint("Coincident", 37, 2, 38, 1),
    Sketcher.Constraint("Coincident", 38, 2, 39, 1),
    Sketcher.Constraint("Coincident", 39, 2, 30, 1),
    Sketcher.Constraint("Coincident", 40, 2, 41, 1),
    Sketcher.Constraint("Coincident", 41, 2, 42, 1),
    Sketcher.Constraint("Coincident", 42, 2, 43, 1),
    Sketcher.Constraint("Coincident", 43, 2, 44, 1),
    Sketcher.Constraint("Coincident", 44, 2, 45, 1),
    Sketcher.Constraint("Tangent", 45, 2, 46, 1),
    Sketcher.Constraint("Coincident", 46, 2, 47, 1),
    Sketcher.Constraint("Coincident", 47, 2, 48, 1),
    Sketcher.Constraint("Coincident", 48, 2, 49, 1),
    Sketcher.Constraint("Coincident", 49, 2, 40, 1),
    Sketcher.Constraint("Coincident", 50, 1, 51, 1),
    Sketcher.Constraint("Coincident", 51, 2, 52, 1),
    Sketcher.Constraint("Coincident", 52, 2, 50, 2),
    Sketcher.Constraint("Coincident", 53, 2, 54, 1),
    Sketcher.Constraint("Coincident", 54, 2, 55, 2),
    Sketcher.Constraint("Coincident", 55, 1, 53, 1),
    Sketcher.Constraint("Coincident", 56, 1, 57, 2),
    Sketcher.Constraint("Coincident", 57, 1, 56, 2),
    Sketcher.Constraint("Coincident", 58, 1, 59, 2),
    Sketcher.Constraint("Coincident", 59, 1, 58, 2),
    Sketcher.Constraint("Coincident", 60, 2, 61, 1),
    Sketcher.Constraint("Coincident", 61, 2, 62, 1),
    Sketcher.Constraint("Tangent", 62, 2, 60, 1),
    Sketcher.Constraint("Coincident", 63, 2, 64, 2),
    Sketcher.Constraint("Coincident", 64, 1, 65, 1),
    Sketcher.Constraint("Coincident", 65, 2, 63, 1),
    Sketcher.Constraint("Horizontal", 1),
    Sketcher.Constraint("Horizontal", 3),
    Sketcher.Constraint("Horizontal", 14),
    Sketcher.Constraint("Horizontal", 16),
    Sketcher.Constraint("Horizontal", 21),
    Sketcher.Constraint("Horizontal", 23),
    Sketcher.Constraint("Horizontal", 30),
    Sketcher.Constraint("Horizontal", 38),
    Sketcher.Constraint("Horizontal", 40),
    Sketcher.Constraint("Horizontal", 48),
    Sketcher.Constraint("Horizontal", 51),
    Sketcher.Constraint("Horizontal", 54),
    Sketcher.Constraint("Horizontal", 56),
    Sketcher.Constraint("Coincident", 5, 3, 2, 3),
    Sketcher.Constraint("Coincident", 8, 3, 2, 3),
    Sketcher.Constraint("Coincident", 15, 3, 12, 3),
    Sketcher.Constraint("Coincident", 18, 3, 12, 3),
    Sketcher.Constraint("Coincident", 25, 3, 22, 3),
    Sketcher.Constraint("Coincident", 28, 3, 22, 3),
    Sketcher.Constraint("Coincident", 36, 3, 32, 3),
    Sketcher.Constraint("Coincident", 39, 3, 32, 3),
    Sketcher.Constraint("Coincident", 45, 3, 42, 3),
    Sketcher.Constraint("Coincident", 49, 3, 42, 3),
    Sketcher.Constraint("Coincident", 55, 3, 50, 3),
    Sketcher.Constraint("Coincident", 57, 3, 50, 3),
    Sketcher.Constraint("Coincident", 58, 3, 50, 3),
    Sketcher.Constraint("Coincident", 60, 3, 50, 3),
    Sketcher.Constraint("Coincident", 64, 3, 50, 3),
    Sketcher.Constraint("Coincident", 56, 1, 50, 1),
    Sketcher.Constraint("Coincident", 57, 1, 54, 2),
    Sketcher.Constraint("Coincident", 59, 1, 55, 1),
    Sketcher.Constraint("Coincident", 61, 2, 52, 2),
    Sketcher.Constraint("Coincident", 63, 2, 58, 1),
    Sketcher.Constraint("Coincident", 64, 1, 60, 2),
    Sketcher.Constraint("Equal", 2, 5),
    Sketcher.Constraint("Equal", 5, 8),
    Sketcher.Constraint("Equal", 8, 9),
    Sketcher.Constraint("Equal", 9, 12),
    Sketcher.Constraint("Equal", 12, 15),
    Sketcher.Constraint("Equal", 15, 18),
    Sketcher.Constraint("Equal", 18, 19),
    Sketcher.Constraint("Equal", 19, 22),
    Sketcher.Constraint("Equal", 22, 25),
    Sketcher.Constraint("Equal", 25, 28),
    Sketcher.Constraint("Equal", 28, 29),
    Sketcher.Constraint("Equal", 29, 32),
    Sketcher.Constraint("Equal", 32, 33),
    Sketcher.Constraint("Equal", 33, 36),
    Sketcher.Constraint("Equal", 36, 39),
    Sketcher.Constraint("Equal", 39, 42),
    Sketcher.Constraint("Equal", 42, 45),
    Sketcher.Constraint("Equal", 45, 46),
    Sketcher.Constraint("Equal", 46, 49),
    Sketcher.Constraint("Equal", 49, 50),
    Sketcher.Constraint("Symmetric", 12, 3, 22, 3, -1, 1),
    Sketcher.Constraint("Symmetric", 2, 3, 32, 3, -1, 1),
    Sketcher.Constraint("Symmetric", 42, 3, 50, 3, -1, 1),
    Sketcher.Constraint("Symmetric", 13, 2, 20, 2, -1, 1),
    Sketcher.Constraint("Symmetric", 16, 2, 23, 2, -1, 1),
    Sketcher.Constraint("Symmetric", 10, 2, 26, 2, -1, 1),
    Sketcher.Constraint("Symmetric", 3, 2, 30, 2, -1, 1),
    Sketcher.Constraint("Symmetric", 6, 2, 34, 2, -1, 1),
    Sketcher.Constraint("Symmetric", 0, 2, 37, 2, -1, 1),
    Sketcher.Constraint("Symmetric", 40, 2, 51, 2, -1, 1),
    Sketcher.Constraint("Symmetric", 47, 2, 53, 2, -1, 1),
    Sketcher.Constraint("Symmetric", 43, 2, 65, 2, -1, 1),
    Sketcher.Constraint("Symmetric", 22, 3, 42, 3, -2),
    Sketcher.Constraint("Symmetric", 1, 2, 2, 2, -2),
    Sketcher.Constraint("Symmetric", 20, 2, 40, 2, -2),
    Sketcher.Constraint("Symmetric", 26, 2, 43, 2, -2),
    Sketcher.Constraint("Symmetric", 23, 2, 47, 2, -2),
    Sketcher.Constraint("PointOnObject", 6, 2, -2),
    Sketcher.Constraint("Parallel", 4, 6),
    Sketcher.Constraint("Parallel", 0, 7),
    Sketcher.Constraint("Parallel", 6, 10),
    Sketcher.Constraint("Parallel", 7, 11),
    Sketcher.Constraint("Parallel", 11, 13),
    Sketcher.Constraint("Parallel", 10, 17),
    Sketcher.Constraint("Parallel", 13, 20),
    Sketcher.Constraint("Parallel", 17, 24),
    Sketcher.Constraint("Parallel", 24, 26),
    Sketcher.Constraint("Parallel", 20, 27),
    Sketcher.Constraint("Parallel", 26, 31),
    Sketcher.Constraint("Parallel", 31, 34),
    Sketcher.Constraint("Parallel", 27, 35),
    Sketcher.Constraint("Parallel", 35, 37),
    Sketcher.Constraint("Parallel", 34, 41),
    Sketcher.Constraint("Parallel", 41, 43),
    Sketcher.Constraint("Parallel", 37, 44),
    Sketcher.Constraint("Parallel", 44, 47),
    Sketcher.Constraint("Parallel", 43, 52),
    Sketcher.Constraint("Parallel", 47, 53),
    Sketcher.Constraint("Parallel", 53, 59),
    Sketcher.Constraint("Parallel", 52, 61),
    Sketcher.Constraint("Parallel", 59, 63),
    Sketcher.Constraint("Parallel", 61, 65),
    Sketcher.Constraint("Horizontal", 5, 2, 7, 2),
    Sketcher.Constraint("Horizontal", 9, 3, 8, 2),
    Sketcher.Constraint("Horizontal", 4, 2, 9, 2),
    Sketcher.Constraint("Horizontal", 12, 2, 17, 2),
    Sketcher.Constraint("Horizontal", 64, 3, 18, 2),
    Sketcher.Constraint("Horizontal", 49, 3, 28, 2),
    Sketcher.Constraint("Horizontal", 39, 3, 32, 2),
    Sketcher.Constraint("Horizontal", 28, 2, 45, 2),
    Sketcher.Constraint("Horizontal", 18, 2, 62, 2),
    Sketcher.Constraint("Equal", 3, 14),
    Sketcher.Constraint("Equal", 4, 6),
    Sketcher.Constraint("Equal", 7, 10),
    Sketcher.Constraint("Equal", 11, 13),
    Sketcher.Constraint("Radius", 2, Q("12.5 mm")),
    Sketcher.Constraint("Angle", 0, Q("60 deg")),
    Sketcher.Constraint("DistanceX", 56, 2, 56, 1, Q("18.6339 mm")),
    Sketcher.Constraint("DistanceY", -1, 1, 2, 3, Q("28.571429 mm")),
    Sketcher.Constraint("DistanceY", -1, 1, 10, 2, Q("30.952381 mm")),
    Sketcher.Constraint("DistanceX", -1, 1, 11, 2, Q("22.18518 mm")),
])
pocket2 = body.newObject("PartDesign::Pocket", "Pocket001")
pocket2.Profile = sketch3
pocket2.Length = 25

doc.recompute()
